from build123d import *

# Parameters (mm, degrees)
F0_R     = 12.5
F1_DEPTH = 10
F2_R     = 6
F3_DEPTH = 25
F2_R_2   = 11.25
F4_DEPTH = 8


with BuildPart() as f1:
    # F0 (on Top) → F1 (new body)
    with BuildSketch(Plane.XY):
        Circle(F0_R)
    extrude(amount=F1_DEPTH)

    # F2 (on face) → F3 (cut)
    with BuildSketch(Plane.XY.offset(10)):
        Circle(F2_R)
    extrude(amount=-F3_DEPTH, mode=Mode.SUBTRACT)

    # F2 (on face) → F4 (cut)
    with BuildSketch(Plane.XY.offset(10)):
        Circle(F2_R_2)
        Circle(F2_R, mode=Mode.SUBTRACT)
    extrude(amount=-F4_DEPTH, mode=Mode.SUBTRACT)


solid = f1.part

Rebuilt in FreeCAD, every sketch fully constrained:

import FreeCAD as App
import Part
import Sketcher

V = App.Vector

doc = App.newDocument("Part")
body = doc.addObject("PartDesign::Body", "Body")

# Sketch on XY plane
sketch1 = doc.addObject("Sketcher::SketchObject", "Sketch")
body.addObject(sketch1)
sketch1.AttachmentSupport = (doc.XY_Plane, [""])
sketch1.MapMode = "FlatFace"
sketch1.addGeometry(Part.Circle(V(0, 0, 0), V(0, 0, 1), 12), False)
sketch1.addConstraint([
    Sketcher.Constraint("Coincident", 0, 3, -1, 1),
    Sketcher.Constraint("Diameter", 0, 25.0),
])
pad1 = doc.addObject("PartDesign::Pad", "Pad")
body.addObject(pad1)
pad1.Profile = sketch1
pad1.Length = 10

# Sketch on XY plane
sketch2 = doc.addObject("Sketcher::SketchObject", "Sketch001")
body.addObject(sketch2)
sketch2.AttachmentSupport = (doc.XY_Plane, [""])
sketch2.MapMode = "FlatFace"
sketch2.AttachmentOffset = App.Placement(V(0, 0, 10), App.Rotation())
sketch2.addGeometry(Part.Circle(V(0, 0, 0), V(0, 0, 1), 6), False)
sketch2.addConstraint([
    Sketcher.Constraint("Coincident", 0, 3, -1, 1),
    Sketcher.Constraint("Diameter", 0, 12.0),
])
pocket1 = doc.addObject("PartDesign::Pocket", "Pocket")
body.addObject(pocket1)
pocket1.Profile = sketch2
pocket1.Length = 25

# Sketch on XY plane
sketch3 = doc.addObject("Sketcher::SketchObject", "Sketch002")
body.addObject(sketch3)
sketch3.AttachmentSupport = (doc.XY_Plane, [""])
sketch3.MapMode = "FlatFace"
sketch3.AttachmentOffset = App.Placement(V(0, 0, 10), App.Rotation())
sketch3.addGeometry([
    Part.Circle(V(0, 0, 0), V(0, 0, 1), 11),
    Part.Circle(V(0, 0, 0), V(0, 0, 1), 6),
], False)
sketch3.addConstraint([
    Sketcher.Constraint("Coincident", 0, 3, -1, 1),
    Sketcher.Constraint("Coincident", 1, 3, -1, 1),
    Sketcher.Constraint("Diameter", 1, 12.0),
    Sketcher.Constraint("Diameter", 0, 22.5),
])
pocket2 = doc.addObject("PartDesign::Pocket", "Pocket001")
body.addObject(pocket2)
pocket2.Profile = sketch3
pocket2.Length = 8

doc.recompute()
